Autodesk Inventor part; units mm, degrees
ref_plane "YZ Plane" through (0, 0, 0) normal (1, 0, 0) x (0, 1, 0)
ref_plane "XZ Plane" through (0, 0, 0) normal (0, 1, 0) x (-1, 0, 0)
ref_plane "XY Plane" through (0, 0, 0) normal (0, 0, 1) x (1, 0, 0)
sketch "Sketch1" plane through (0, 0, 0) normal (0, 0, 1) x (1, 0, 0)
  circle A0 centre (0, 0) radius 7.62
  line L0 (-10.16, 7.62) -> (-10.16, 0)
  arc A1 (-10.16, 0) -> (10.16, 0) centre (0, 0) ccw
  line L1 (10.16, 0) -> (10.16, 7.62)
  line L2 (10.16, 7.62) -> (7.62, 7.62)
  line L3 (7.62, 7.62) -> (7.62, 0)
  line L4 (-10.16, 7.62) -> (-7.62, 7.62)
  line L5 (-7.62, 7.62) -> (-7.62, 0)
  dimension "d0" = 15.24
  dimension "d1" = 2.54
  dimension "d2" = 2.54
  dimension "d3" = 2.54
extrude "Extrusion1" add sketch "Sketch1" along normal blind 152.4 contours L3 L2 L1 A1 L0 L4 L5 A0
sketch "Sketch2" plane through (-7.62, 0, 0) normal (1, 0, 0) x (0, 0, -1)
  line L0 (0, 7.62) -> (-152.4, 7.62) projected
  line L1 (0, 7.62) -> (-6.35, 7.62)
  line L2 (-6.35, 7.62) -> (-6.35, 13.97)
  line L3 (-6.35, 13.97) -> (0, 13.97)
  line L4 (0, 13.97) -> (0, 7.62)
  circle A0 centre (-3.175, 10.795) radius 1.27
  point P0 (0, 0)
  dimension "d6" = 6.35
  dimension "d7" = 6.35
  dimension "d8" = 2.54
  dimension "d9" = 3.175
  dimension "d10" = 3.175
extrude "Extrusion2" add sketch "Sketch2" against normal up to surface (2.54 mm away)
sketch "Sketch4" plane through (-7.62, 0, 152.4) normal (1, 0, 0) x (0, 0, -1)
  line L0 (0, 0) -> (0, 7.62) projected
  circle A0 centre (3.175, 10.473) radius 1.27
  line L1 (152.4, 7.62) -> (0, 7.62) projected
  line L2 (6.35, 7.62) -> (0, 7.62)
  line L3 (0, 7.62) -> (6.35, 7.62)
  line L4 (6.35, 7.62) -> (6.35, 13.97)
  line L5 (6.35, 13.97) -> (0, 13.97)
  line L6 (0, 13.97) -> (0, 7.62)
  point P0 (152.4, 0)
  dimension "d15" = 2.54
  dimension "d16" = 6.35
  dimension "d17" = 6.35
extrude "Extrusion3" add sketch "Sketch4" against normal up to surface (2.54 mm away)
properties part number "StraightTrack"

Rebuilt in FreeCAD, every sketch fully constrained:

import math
import FreeCAD as App
import Part
import Sketcher
from FreeCAD import Vector
Q = App.Units.Quantity


def add_polygon(sketch, points):
    """Adds a closed chain of lines whose ends are joined by coincident constraints."""
    first, n = sketch.GeometryCount, len(points)
    for a, b in zip(points, points[1:] + points[:1]):
        sketch.addGeometry(Part.LineSegment(App.Vector(*a, 0), App.Vector(*b, 0)), False)
    for i in range(n):
        sketch.addConstraint(Sketcher.Constraint("Coincident", first + i, 2, first + (i + 1) % n, 1))

doc = App.newDocument("Part")
body = doc.addObject("PartDesign::Body", "Body")

sketch1 = doc.addObject("Sketcher::SketchObject", "Sketch")
body.addObject(sketch1)
sketch1.AttachmentSupport = (doc.XY_Plane, [""])
sketch1.MapMode = "FlatFace"
sketch1.addGeometry(Part.LineSegment(Vector(7.6, 7.6, 0), Vector(7.6, 0, 0)), False)
sketch1.addGeometry(Part.ArcOfCircle(Part.Circle(Vector(0, 0, 0), Vector(0, 0, 1), 7.6), math.radians(180), math.radians(360)), False)
sketch1.addGeometry(Part.LineSegment(Vector(-7.6, 0, 0), Vector(-7.6, 7.6, 0)), False)
sketch1.addGeometry(Part.LineSegment(Vector(-7.6, 7.6, 0), Vector(-10.2, 7.6, 0)), False)
sketch1.addGeometry(Part.LineSegment(Vector(-10.2, 7.6, 0), Vector(-10.2, 0, 0)), False)
sketch1.addGeometry(Part.ArcOfCircle(Part.Circle(Vector(0, 0, 0), Vector(0, 0, 1), 10.2), math.radians(180), math.radians(360)), False)
sketch1.addGeometry(Part.LineSegment(Vector(10.2, 0, 0), Vector(10.2, 7.6, 0)), False)
sketch1.addGeometry(Part.LineSegment(Vector(10.2, 7.6, 0), Vector(7.6, 7.6, 0)), False)
sketch1.addConstraint(Sketcher.Constraint("Tangent", 0, 2, 1, 2))
sketch1.addConstraint(Sketcher.Constraint("Tangent", 1, 1, 2, 1))
sketch1.addConstraint(Sketcher.Constraint("Coincident", 2, 2, 3, 1))
sketch1.addConstraint(Sketcher.Constraint("Coincident", 3, 2, 4, 1))
sketch1.addConstraint(Sketcher.Constraint("Tangent", 4, 2, 5, 1))
sketch1.addConstraint(Sketcher.Constraint("Tangent", 5, 2, 6, 1))
sketch1.addConstraint(Sketcher.Constraint("Coincident", 6, 2, 7, 1))
sketch1.addConstraint(Sketcher.Constraint("Coincident", 7, 2, 0, 1))
sketch1.addConstraint(Sketcher.Constraint("Vertical", 0))
sketch1.addConstraint(Sketcher.Constraint("Vertical", 2))
sketch1.addConstraint(Sketcher.Constraint("Horizontal", 3))
sketch1.addConstraint(Sketcher.Constraint("Vertical", 4))
sketch1.addConstraint(Sketcher.Constraint("Vertical", 6))
sketch1.addConstraint(Sketcher.Constraint("Horizontal", 7))
sketch1.addConstraint(Sketcher.Constraint("Coincident", 1, 3, -1, 1))
sketch1.addConstraint(Sketcher.Constraint("Coincident", 5, 3, -1, 1))
sketch1.addConstraint(Sketcher.Constraint("Horizontal", 3, 2, 6, 2))
sketch1.addConstraint(Sketcher.Constraint("Radius", 1, Q("0.3 in")))
sketch1.addConstraint(Sketcher.Constraint("DistanceX", 3, 2, 3, 1, Q("0.1 in")))
sketch1.addConstraint(Sketcher.Constraint("DistanceY", 0, 2, 0, 1, Q("0.3 in")))
pad1 = doc.addObject("PartDesign::Pad", "Pad")
body.addObject(pad1)
pad1.Profile = sketch1
pad1.Length = Q("6 in")

sketch2 = doc.addObject("Sketcher::SketchObject", "Sketch001")
body.addObject(sketch2)
sketch2.AttachmentSupport = (doc.YZ_Plane, [""])
sketch2.MapMode = "FlatFace"
sketch2.AttachmentOffset = App.Placement(Vector(0, 0, -0.3 * 25.4), App.Rotation())
add_polygon(sketch2, [(7.6, 6.3), (7.6, 0), (14, 0), (14, 6.3)])
sketch2.addGeometry(Part.Circle(Vector(10.8, 3.2, 0), Vector(0, 0, 1), 1.3), False)
sketch2.addConstraint(Sketcher.Constraint("Vertical", 0))
sketch2.addConstraint(Sketcher.Constraint("Horizontal", 1))
sketch2.addConstraint(Sketcher.Constraint("Vertical", 2))
sketch2.addConstraint(Sketcher.Constraint("Horizontal", 3))
sketch2.addConstraint(Sketcher.Constraint("PointOnObject", 0, 2, -1))
sketch2.addConstraint(Sketcher.Constraint("Equal", 3, 0))
sketch2.addConstraint(Sketcher.Constraint("Diameter", 4, Q("0.1 in")))
sketch2.addConstraint(Sketcher.Constraint("DistanceX", 1, 1, 1, 2, Q("0.25 in")))
sketch2.addConstraint(Sketcher.Constraint("DistanceY", -1, 1, 4, 3, Q("0.125 in")))
sketch2.addConstraint(Sketcher.Constraint("DistanceX", 0, 2, 4, 3, Q("0.125 in")))
sketch2.addConstraint(Sketcher.Constraint("DistanceX", -1, 1, 0, 2, Q("0.3 in")))
pad2 = doc.addObject("PartDesign::Pad", "Pad001")
body.addObject(pad2)
pad2.Profile = sketch2
pad2.Length = Q("0.1 in")
pad2.Reversed = True

sketch3 = doc.addObject("Sketcher::SketchObject", "Sketch002")
body.addObject(sketch3)
sketch3.AttachmentSupport = (doc.YZ_Plane, [""])
sketch3.MapMode = "FlatFace"
sketch3.AttachmentOffset = App.Placement(Vector(0, 0, -0.3 * 25.4), App.Rotation())
add_polygon(sketch3, [(7.6, 152.4), (7.6, 146.1), (14, 146.1), (14, 152.4)])
sketch3.addGeometry(Part.Circle(Vector(10.5, 149.2, 0), Vector(0, 0, 1), 1.3), False)
sketch3.addConstraint(Sketcher.Constraint("Vertical", 0))
sketch3.addConstraint(Sketcher.Constraint("Horizontal", 1))
sketch3.addConstraint(Sketcher.Constraint("Vertical", 2))
sketch3.addConstraint(Sketcher.Constraint("Horizontal", 3))
sketch3.addConstraint(Sketcher.Constraint("Equal", 3, 0))
sketch3.addConstraint(Sketcher.Constraint("Diameter", 4, Q("0.1 in")))
sketch3.addConstraint(Sketcher.Constraint("DistanceX", 1, 1, 1, 2, Q("0.25 in")))
sketch3.addConstraint(Sketcher.Constraint("DistanceY", -1, 1, 2, 2, Q("6 in")))
sketch3.addConstraint(Sketcher.Constraint("DistanceX", -1, 1, 0, 2, Q("0.3 in")))
sketch3.addConstraint(Sketcher.Constraint("DistanceY", -1, 1, 4, 3, Q("5.875 in")))
sketch3.addConstraint(Sketcher.Constraint("DistanceX", -1, 1, 4, 3, 10.473))
pad3 = doc.addObject("PartDesign::Pad", "Pad002")
body.addObject(pad3)
pad3.Profile = sketch3
pad3.Length = Q("0.1 in")
pad3.Reversed = True

doc.recompute()
